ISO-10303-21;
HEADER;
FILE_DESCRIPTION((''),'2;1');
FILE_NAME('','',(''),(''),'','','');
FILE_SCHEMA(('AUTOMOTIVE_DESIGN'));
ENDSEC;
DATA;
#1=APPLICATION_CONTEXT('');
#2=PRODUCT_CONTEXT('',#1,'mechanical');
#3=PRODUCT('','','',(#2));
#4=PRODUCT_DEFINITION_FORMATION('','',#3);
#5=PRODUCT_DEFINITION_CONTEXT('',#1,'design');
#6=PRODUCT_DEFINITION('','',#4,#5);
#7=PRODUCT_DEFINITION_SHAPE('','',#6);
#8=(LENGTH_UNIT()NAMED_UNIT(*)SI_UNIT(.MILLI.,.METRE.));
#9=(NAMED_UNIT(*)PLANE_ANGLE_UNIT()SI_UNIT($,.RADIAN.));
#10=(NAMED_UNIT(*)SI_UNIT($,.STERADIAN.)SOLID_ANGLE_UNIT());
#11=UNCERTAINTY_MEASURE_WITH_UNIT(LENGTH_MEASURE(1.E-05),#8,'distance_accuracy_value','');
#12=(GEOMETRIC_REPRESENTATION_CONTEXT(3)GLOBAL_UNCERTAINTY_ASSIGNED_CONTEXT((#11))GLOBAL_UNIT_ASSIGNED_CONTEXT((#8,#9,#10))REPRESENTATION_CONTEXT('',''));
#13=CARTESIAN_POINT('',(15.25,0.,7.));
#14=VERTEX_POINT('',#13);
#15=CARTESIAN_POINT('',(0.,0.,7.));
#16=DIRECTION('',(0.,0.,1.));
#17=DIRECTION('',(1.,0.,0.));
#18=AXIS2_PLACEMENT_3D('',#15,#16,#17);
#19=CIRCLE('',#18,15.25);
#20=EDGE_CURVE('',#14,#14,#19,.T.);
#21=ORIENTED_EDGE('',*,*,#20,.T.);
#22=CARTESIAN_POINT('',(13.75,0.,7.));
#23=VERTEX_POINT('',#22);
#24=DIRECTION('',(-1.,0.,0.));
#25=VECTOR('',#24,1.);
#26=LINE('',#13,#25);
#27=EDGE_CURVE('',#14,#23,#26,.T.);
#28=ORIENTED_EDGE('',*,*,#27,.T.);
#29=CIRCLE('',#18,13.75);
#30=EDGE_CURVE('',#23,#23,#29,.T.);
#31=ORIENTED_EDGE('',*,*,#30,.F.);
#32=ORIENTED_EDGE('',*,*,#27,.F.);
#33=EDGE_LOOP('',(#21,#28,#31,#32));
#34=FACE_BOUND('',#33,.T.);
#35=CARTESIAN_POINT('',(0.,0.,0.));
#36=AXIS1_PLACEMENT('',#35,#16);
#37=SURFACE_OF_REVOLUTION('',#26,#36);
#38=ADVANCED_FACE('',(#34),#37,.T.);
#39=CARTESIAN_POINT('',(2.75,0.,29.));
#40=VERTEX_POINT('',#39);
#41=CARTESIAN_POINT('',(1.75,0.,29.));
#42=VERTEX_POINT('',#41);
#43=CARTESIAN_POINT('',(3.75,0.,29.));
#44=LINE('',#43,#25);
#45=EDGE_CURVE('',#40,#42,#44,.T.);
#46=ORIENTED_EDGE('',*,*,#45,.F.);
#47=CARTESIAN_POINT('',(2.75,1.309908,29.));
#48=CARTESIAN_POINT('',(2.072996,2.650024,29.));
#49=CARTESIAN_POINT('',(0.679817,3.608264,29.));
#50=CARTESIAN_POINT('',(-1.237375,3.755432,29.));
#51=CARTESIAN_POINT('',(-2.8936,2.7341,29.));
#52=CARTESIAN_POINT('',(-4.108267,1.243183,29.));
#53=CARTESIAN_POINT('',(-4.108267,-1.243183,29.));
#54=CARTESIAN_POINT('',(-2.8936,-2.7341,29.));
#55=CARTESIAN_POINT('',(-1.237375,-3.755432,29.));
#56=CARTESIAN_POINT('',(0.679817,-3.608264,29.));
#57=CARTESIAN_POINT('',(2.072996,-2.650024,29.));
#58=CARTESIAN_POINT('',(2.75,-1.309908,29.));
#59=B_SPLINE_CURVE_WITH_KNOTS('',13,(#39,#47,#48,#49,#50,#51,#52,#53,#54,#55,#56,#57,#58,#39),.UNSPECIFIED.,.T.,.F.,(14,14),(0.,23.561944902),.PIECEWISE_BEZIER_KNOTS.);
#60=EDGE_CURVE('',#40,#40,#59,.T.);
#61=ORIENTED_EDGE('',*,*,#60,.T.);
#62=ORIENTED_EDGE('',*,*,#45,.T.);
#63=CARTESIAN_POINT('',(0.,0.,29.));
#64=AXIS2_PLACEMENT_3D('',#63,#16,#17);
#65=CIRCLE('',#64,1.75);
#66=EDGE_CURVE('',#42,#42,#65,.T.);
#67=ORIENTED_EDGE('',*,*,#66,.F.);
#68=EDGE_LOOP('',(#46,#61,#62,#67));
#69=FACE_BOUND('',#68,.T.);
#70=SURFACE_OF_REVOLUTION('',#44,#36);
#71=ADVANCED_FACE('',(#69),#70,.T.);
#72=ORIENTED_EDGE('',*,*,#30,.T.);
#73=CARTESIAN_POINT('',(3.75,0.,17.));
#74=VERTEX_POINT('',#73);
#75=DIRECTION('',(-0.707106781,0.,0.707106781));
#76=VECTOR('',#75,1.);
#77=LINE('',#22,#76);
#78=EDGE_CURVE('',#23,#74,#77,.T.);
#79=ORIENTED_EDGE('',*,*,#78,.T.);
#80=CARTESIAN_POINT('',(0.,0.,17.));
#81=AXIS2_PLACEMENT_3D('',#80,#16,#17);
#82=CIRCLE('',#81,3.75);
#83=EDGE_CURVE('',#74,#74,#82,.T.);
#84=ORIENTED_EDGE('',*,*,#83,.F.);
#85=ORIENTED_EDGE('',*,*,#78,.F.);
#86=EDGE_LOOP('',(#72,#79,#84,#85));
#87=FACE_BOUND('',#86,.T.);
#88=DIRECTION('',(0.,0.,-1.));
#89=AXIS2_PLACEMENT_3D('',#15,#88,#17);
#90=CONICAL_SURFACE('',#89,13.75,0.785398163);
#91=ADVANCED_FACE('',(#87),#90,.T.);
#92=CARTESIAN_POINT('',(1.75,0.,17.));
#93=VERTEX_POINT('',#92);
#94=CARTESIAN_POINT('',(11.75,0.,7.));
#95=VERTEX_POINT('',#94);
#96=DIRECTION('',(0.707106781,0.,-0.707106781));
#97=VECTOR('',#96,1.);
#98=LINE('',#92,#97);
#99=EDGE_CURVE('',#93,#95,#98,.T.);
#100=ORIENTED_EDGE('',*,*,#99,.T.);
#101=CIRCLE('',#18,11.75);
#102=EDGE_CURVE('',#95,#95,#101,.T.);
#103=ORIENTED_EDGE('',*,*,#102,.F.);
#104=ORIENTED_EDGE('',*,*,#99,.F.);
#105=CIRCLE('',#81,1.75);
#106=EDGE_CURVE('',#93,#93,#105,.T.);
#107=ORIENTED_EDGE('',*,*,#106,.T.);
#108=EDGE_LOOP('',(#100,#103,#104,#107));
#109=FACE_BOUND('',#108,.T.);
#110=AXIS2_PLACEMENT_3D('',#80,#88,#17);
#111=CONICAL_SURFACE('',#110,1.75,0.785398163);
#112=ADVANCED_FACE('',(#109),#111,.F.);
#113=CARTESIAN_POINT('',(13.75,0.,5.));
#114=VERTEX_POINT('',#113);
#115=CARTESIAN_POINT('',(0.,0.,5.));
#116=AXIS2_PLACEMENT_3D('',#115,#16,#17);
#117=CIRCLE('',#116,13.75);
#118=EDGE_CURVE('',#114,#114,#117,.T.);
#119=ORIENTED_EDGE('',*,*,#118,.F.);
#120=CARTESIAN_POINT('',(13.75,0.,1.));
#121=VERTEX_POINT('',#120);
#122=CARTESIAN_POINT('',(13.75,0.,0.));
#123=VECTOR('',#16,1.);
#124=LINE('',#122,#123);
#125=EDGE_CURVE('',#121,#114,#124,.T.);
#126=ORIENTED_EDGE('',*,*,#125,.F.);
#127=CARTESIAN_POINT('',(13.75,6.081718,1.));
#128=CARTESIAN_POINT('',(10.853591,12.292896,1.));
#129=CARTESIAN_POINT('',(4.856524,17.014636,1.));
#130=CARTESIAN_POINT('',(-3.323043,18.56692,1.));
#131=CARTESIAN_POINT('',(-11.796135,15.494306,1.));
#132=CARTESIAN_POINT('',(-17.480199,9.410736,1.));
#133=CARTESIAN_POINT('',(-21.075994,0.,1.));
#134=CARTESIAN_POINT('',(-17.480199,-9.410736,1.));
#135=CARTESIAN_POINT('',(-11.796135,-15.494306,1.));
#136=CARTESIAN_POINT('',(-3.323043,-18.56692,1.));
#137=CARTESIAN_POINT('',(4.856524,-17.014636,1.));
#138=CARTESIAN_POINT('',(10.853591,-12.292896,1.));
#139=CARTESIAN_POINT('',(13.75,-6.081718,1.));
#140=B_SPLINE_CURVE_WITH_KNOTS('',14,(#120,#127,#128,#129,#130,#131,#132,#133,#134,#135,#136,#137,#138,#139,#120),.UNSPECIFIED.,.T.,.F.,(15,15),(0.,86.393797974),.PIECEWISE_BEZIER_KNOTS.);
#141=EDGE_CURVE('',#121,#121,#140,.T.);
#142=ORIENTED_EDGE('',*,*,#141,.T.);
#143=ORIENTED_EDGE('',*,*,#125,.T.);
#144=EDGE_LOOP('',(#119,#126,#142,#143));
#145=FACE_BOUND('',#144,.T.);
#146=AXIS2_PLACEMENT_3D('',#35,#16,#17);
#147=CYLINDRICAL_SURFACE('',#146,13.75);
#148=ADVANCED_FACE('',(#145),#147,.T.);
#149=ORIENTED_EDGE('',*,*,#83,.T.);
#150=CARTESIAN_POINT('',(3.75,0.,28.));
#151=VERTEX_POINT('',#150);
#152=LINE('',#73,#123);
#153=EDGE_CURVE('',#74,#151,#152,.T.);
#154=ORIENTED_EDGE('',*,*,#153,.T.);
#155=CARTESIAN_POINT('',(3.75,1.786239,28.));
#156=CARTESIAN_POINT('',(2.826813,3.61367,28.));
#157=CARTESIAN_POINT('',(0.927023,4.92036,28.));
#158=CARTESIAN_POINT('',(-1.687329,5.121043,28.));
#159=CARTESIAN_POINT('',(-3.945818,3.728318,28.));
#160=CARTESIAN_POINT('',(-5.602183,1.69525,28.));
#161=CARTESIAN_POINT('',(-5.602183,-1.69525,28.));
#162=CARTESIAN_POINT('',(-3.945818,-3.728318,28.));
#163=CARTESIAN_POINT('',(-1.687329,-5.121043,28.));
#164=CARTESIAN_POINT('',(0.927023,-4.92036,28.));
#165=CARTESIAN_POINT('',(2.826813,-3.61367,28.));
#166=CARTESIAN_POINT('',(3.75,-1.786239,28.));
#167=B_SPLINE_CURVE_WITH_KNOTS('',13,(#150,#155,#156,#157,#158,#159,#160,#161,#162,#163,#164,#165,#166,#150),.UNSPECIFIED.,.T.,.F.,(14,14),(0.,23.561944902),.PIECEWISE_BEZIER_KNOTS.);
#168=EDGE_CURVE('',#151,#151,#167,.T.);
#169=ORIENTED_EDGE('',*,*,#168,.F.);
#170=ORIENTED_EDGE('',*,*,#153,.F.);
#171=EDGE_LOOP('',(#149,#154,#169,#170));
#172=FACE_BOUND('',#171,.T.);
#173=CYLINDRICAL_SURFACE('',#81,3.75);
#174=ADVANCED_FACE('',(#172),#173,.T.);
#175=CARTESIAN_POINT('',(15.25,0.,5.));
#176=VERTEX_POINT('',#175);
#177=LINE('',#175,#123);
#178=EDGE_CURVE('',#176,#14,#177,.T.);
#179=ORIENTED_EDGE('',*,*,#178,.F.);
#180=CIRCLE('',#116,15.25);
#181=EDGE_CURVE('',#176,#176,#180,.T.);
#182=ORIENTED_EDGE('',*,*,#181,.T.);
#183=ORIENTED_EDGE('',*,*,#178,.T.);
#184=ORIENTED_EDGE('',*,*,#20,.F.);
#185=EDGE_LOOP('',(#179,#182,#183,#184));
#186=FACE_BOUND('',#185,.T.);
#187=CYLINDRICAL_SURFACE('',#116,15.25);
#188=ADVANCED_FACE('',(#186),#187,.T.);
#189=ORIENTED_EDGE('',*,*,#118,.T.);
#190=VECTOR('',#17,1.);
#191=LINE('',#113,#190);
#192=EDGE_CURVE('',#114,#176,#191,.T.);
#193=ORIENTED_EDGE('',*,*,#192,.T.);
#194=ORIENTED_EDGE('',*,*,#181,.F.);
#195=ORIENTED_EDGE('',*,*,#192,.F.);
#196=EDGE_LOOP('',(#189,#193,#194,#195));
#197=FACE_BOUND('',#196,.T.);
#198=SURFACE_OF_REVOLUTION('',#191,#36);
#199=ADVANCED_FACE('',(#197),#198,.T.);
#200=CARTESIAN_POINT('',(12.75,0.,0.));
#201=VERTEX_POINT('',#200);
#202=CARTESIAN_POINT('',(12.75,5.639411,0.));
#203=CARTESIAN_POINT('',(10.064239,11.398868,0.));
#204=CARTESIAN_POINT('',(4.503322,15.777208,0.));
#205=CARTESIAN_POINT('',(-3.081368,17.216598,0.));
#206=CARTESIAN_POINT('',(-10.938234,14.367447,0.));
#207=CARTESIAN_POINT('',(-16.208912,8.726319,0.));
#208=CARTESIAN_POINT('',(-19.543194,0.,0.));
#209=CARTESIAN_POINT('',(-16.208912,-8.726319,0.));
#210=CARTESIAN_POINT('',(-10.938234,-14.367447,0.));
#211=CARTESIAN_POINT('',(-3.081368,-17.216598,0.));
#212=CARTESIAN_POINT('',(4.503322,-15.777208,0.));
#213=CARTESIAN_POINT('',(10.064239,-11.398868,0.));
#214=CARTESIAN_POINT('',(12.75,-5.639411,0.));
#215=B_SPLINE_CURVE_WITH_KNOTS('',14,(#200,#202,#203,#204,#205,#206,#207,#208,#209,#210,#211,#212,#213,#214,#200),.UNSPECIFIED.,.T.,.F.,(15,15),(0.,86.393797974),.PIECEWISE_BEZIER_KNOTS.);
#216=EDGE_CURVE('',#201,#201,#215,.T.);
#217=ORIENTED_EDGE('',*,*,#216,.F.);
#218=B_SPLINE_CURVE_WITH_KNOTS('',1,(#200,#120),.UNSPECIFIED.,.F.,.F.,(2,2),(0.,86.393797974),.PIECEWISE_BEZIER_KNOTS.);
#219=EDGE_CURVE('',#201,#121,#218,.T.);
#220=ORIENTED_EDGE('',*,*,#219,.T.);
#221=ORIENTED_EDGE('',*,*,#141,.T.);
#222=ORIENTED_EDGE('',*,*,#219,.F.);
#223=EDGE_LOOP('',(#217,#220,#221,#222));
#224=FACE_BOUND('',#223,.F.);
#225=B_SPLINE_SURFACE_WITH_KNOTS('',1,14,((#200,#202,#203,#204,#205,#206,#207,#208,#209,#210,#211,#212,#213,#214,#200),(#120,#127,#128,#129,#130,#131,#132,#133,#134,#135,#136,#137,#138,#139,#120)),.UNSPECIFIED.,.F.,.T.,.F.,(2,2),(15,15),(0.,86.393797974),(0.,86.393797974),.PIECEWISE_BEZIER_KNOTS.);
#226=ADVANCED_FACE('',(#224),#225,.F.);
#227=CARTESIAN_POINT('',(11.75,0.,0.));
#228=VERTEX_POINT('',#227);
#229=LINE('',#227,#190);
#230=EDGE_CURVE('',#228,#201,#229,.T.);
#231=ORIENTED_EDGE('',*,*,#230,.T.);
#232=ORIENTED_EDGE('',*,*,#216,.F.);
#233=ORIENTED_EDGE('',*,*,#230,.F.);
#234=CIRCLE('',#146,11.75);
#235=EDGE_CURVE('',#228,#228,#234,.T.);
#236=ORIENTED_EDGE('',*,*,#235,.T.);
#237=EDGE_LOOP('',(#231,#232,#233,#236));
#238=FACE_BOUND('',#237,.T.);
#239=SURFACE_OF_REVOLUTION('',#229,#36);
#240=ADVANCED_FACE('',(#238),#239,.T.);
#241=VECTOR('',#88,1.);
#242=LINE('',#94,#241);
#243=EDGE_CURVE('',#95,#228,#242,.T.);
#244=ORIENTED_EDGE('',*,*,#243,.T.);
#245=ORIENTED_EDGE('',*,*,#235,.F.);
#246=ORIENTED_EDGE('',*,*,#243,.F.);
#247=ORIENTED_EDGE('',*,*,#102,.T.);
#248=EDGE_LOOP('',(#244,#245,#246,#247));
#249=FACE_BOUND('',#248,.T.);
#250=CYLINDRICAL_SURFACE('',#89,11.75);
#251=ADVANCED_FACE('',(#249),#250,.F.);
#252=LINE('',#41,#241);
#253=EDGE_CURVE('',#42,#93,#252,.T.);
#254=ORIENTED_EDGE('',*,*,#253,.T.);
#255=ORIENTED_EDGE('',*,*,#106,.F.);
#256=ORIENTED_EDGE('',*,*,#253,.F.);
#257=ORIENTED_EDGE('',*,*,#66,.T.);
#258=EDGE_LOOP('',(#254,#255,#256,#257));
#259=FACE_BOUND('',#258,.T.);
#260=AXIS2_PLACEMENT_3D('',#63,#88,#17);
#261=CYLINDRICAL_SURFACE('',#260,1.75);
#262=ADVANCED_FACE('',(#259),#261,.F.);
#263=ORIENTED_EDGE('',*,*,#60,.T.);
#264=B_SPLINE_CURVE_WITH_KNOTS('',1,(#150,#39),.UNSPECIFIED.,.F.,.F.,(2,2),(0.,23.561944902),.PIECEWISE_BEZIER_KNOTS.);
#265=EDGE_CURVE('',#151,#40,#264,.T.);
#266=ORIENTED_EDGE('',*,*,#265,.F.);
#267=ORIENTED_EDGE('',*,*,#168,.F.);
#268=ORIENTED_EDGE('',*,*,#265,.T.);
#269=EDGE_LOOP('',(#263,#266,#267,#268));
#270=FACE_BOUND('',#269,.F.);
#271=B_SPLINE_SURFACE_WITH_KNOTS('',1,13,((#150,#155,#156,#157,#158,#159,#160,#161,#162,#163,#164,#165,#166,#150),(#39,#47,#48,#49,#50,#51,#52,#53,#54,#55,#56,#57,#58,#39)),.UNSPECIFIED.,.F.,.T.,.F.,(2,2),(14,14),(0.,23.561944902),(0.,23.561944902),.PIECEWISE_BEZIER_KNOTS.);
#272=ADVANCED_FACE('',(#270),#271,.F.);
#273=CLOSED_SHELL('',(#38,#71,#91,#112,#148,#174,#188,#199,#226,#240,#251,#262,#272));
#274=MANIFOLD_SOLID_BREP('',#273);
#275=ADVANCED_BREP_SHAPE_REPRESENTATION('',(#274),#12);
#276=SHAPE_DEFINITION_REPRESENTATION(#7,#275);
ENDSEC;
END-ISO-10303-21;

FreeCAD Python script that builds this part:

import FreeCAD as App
import Part
import Sketcher
from FreeCAD import Vector
Q = App.Units.Quantity


def edges_at(feature, points):
    """Names of the edges that pass closest to the given points."""
    edges = feature.Shape.Edges
    near = lambda p: min(range(len(edges)), key=lambda i: edges[i].distToShape(Part.Vertex(*p))[0])
    return sorted({f"Edge{near(p) + 1}" for p in points})


def add_polygon(sketch, points):
    """Adds a closed chain of lines whose ends are joined by coincident constraints."""
    first, n = sketch.GeometryCount, len(points)
    for a, b in zip(points, points[1:] + points[:1]):
        sketch.addGeometry(Part.LineSegment(App.Vector(*a, 0), App.Vector(*b, 0)), False)
    for i in range(n):
        sketch.addConstraint(Sketcher.Constraint("Coincident", first + i, 2, first + (i + 1) % n, 1))

doc = App.newDocument("Part")
body = doc.addObject("PartDesign::Body", "Body")

sketch1 = body.newObject("Sketcher::SketchObject", "Sketch")
sketch1.AttachmentSupport = (doc.getObject("XZ_Plane"), [""])
sketch1.MapMode = "FlatFace"
add_polygon(sketch1, [(1.75, 29), (1.75, 17), (11.75, 7), (11.75, 0), (13.75, 0), (13.75, 5), (15.25, 5), (15.25, 7), (13.75, 7), (3.75, 17), (3.75, 29)])
sketch1.addConstraint([
    Sketcher.Constraint("Vertical", 0),
    Sketcher.Constraint("Vertical", 2),
    Sketcher.Constraint("Horizontal", 3),
    Sketcher.Constraint("Vertical", 4),
    Sketcher.Constraint("Horizontal", 5),
    Sketcher.Constraint("Vertical", 6),
    Sketcher.Constraint("Horizontal", 7),
    Sketcher.Constraint("Vertical", 9),
    Sketcher.Constraint("Horizontal", 10),
    Sketcher.Constraint("PointOnObject", 2, 2, -1),
    Sketcher.Constraint("Parallel", 1, 8),
    Sketcher.Constraint("Horizontal", 1, 2, 6, 2),
    Sketcher.Constraint("Horizontal", 0, 2, 8, 2),
    Sketcher.Constraint("Vertical", 4, 2, 7, 2),
    Sketcher.Constraint("Equal", 10, 6),
    Sketcher.Constraint("DistanceX", 3, 1, 3, 2, 2.0),
    Sketcher.Constraint("DistanceY", 0, 2, 0, 1, 12.0),
    Sketcher.Constraint("DistanceY", 2, 2, 2, 1, 7.0),
    Sketcher.Constraint("Angle", 1, Q("-45 deg")),
    Sketcher.Constraint("DistanceX", 5, 1, 5, 2, 1.5),
    Sketcher.Constraint("DistanceY", -1, 1, 0, 2, 17.0),
    Sketcher.Constraint("DistanceX", -1, 1, 0, 2, 1.75),
])

sketch2 = body.newObject("Sketcher::SketchObject", "Sketch001")
sketch2.AttachmentSupport = (doc.getObject("XY_Plane"), [""])
sketch2.MapMode = "FlatFace"
sketch2.addGeometry(Part.Circle(Vector(0, 0, 0), Vector(0, 0, 1), 15), False)
sketch2.addConstraint([
    Sketcher.Constraint("Coincident", 0, 3, -1, 1),
    Sketcher.Constraint("Diameter", 0, 30.0),
])
doc.recompute()

additivepipe = body.newObject("PartDesign::AdditivePipe", "AdditivePipe")
additivepipe.Profile = sketch1
additivepipe.Spine = (sketch2, ["Edge1"])
doc.recompute()

chamfer = body.newObject("PartDesign::Chamfer", "Chamfer")
chamfer.Base = (additivepipe, edges_at(additivepipe, [(-3.75, 0, 29), (-13.75, 0, 0)]))
chamfer.Size = 1

doc.recompute()
